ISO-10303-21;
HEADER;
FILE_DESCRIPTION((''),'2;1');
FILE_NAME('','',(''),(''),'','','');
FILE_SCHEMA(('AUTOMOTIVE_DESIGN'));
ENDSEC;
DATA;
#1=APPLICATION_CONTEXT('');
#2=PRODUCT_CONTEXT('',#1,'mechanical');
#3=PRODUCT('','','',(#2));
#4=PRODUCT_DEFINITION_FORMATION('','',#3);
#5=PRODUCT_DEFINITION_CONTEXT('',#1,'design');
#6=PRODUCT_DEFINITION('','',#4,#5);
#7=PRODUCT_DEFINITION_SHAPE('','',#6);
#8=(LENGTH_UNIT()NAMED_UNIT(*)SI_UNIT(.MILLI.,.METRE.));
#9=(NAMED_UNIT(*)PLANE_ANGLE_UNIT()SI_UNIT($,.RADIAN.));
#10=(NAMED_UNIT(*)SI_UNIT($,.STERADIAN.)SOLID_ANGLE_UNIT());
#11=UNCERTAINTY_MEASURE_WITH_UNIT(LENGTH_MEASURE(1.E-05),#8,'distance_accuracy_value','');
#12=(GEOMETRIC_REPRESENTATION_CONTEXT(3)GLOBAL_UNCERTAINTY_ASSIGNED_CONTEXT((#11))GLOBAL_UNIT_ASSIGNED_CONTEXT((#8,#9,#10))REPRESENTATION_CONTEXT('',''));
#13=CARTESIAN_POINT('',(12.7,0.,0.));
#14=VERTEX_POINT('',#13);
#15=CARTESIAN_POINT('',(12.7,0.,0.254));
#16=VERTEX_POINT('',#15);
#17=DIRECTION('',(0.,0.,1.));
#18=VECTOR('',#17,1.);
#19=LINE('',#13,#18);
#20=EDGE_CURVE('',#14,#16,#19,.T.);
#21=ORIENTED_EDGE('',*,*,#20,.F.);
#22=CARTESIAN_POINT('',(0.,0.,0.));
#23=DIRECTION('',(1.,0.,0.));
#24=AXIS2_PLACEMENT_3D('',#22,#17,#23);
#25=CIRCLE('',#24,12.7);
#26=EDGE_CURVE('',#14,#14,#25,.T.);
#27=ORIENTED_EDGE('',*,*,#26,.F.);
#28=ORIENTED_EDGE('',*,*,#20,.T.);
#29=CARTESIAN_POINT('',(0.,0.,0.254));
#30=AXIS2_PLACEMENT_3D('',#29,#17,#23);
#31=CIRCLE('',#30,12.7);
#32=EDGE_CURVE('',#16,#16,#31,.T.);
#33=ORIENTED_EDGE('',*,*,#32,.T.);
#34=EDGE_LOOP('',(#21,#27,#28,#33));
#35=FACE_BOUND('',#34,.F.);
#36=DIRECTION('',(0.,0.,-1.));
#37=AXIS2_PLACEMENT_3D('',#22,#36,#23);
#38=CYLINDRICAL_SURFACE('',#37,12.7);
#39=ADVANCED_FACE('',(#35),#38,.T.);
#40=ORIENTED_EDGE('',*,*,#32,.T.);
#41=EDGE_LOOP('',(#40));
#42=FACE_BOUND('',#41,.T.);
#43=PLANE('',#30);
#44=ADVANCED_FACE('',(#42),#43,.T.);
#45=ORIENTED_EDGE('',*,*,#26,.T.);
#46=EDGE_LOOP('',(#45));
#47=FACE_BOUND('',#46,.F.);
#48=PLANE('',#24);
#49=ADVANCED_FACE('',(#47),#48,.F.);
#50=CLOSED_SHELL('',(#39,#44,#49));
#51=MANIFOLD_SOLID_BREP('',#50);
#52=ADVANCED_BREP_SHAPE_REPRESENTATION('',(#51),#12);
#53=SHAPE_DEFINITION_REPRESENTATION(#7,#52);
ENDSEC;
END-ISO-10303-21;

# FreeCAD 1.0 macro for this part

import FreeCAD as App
import Part
import Sketcher
from FreeCAD import Vector
Q = App.Units.Quantity

doc = App.newDocument("Part")
body = doc.addObject("PartDesign::Body", "Body")

# Sketch on XY plane
sketch1 = doc.addObject("Sketcher::SketchObject", "Sketch")
body.addObject(sketch1)
sketch1.AttachmentSupport = (doc.XY_Plane, [""])
sketch1.MapMode = "FlatFace"
sketch1.addGeometry(Part.Circle(Vector(0, 0, 0), Vector(0, 0, 1), 13), False)
sketch1.addConstraint([
    Sketcher.Constraint("Coincident", 0, 3, -1, 1),
    Sketcher.Constraint("Diameter", 0, Q("1 in")),
])
pad1 = doc.addObject("PartDesign::Pad", "Pad")
body.addObject(pad1)
pad1.Profile = sketch1
pad1.Length = Q("0.01 in")

doc.recompute()
